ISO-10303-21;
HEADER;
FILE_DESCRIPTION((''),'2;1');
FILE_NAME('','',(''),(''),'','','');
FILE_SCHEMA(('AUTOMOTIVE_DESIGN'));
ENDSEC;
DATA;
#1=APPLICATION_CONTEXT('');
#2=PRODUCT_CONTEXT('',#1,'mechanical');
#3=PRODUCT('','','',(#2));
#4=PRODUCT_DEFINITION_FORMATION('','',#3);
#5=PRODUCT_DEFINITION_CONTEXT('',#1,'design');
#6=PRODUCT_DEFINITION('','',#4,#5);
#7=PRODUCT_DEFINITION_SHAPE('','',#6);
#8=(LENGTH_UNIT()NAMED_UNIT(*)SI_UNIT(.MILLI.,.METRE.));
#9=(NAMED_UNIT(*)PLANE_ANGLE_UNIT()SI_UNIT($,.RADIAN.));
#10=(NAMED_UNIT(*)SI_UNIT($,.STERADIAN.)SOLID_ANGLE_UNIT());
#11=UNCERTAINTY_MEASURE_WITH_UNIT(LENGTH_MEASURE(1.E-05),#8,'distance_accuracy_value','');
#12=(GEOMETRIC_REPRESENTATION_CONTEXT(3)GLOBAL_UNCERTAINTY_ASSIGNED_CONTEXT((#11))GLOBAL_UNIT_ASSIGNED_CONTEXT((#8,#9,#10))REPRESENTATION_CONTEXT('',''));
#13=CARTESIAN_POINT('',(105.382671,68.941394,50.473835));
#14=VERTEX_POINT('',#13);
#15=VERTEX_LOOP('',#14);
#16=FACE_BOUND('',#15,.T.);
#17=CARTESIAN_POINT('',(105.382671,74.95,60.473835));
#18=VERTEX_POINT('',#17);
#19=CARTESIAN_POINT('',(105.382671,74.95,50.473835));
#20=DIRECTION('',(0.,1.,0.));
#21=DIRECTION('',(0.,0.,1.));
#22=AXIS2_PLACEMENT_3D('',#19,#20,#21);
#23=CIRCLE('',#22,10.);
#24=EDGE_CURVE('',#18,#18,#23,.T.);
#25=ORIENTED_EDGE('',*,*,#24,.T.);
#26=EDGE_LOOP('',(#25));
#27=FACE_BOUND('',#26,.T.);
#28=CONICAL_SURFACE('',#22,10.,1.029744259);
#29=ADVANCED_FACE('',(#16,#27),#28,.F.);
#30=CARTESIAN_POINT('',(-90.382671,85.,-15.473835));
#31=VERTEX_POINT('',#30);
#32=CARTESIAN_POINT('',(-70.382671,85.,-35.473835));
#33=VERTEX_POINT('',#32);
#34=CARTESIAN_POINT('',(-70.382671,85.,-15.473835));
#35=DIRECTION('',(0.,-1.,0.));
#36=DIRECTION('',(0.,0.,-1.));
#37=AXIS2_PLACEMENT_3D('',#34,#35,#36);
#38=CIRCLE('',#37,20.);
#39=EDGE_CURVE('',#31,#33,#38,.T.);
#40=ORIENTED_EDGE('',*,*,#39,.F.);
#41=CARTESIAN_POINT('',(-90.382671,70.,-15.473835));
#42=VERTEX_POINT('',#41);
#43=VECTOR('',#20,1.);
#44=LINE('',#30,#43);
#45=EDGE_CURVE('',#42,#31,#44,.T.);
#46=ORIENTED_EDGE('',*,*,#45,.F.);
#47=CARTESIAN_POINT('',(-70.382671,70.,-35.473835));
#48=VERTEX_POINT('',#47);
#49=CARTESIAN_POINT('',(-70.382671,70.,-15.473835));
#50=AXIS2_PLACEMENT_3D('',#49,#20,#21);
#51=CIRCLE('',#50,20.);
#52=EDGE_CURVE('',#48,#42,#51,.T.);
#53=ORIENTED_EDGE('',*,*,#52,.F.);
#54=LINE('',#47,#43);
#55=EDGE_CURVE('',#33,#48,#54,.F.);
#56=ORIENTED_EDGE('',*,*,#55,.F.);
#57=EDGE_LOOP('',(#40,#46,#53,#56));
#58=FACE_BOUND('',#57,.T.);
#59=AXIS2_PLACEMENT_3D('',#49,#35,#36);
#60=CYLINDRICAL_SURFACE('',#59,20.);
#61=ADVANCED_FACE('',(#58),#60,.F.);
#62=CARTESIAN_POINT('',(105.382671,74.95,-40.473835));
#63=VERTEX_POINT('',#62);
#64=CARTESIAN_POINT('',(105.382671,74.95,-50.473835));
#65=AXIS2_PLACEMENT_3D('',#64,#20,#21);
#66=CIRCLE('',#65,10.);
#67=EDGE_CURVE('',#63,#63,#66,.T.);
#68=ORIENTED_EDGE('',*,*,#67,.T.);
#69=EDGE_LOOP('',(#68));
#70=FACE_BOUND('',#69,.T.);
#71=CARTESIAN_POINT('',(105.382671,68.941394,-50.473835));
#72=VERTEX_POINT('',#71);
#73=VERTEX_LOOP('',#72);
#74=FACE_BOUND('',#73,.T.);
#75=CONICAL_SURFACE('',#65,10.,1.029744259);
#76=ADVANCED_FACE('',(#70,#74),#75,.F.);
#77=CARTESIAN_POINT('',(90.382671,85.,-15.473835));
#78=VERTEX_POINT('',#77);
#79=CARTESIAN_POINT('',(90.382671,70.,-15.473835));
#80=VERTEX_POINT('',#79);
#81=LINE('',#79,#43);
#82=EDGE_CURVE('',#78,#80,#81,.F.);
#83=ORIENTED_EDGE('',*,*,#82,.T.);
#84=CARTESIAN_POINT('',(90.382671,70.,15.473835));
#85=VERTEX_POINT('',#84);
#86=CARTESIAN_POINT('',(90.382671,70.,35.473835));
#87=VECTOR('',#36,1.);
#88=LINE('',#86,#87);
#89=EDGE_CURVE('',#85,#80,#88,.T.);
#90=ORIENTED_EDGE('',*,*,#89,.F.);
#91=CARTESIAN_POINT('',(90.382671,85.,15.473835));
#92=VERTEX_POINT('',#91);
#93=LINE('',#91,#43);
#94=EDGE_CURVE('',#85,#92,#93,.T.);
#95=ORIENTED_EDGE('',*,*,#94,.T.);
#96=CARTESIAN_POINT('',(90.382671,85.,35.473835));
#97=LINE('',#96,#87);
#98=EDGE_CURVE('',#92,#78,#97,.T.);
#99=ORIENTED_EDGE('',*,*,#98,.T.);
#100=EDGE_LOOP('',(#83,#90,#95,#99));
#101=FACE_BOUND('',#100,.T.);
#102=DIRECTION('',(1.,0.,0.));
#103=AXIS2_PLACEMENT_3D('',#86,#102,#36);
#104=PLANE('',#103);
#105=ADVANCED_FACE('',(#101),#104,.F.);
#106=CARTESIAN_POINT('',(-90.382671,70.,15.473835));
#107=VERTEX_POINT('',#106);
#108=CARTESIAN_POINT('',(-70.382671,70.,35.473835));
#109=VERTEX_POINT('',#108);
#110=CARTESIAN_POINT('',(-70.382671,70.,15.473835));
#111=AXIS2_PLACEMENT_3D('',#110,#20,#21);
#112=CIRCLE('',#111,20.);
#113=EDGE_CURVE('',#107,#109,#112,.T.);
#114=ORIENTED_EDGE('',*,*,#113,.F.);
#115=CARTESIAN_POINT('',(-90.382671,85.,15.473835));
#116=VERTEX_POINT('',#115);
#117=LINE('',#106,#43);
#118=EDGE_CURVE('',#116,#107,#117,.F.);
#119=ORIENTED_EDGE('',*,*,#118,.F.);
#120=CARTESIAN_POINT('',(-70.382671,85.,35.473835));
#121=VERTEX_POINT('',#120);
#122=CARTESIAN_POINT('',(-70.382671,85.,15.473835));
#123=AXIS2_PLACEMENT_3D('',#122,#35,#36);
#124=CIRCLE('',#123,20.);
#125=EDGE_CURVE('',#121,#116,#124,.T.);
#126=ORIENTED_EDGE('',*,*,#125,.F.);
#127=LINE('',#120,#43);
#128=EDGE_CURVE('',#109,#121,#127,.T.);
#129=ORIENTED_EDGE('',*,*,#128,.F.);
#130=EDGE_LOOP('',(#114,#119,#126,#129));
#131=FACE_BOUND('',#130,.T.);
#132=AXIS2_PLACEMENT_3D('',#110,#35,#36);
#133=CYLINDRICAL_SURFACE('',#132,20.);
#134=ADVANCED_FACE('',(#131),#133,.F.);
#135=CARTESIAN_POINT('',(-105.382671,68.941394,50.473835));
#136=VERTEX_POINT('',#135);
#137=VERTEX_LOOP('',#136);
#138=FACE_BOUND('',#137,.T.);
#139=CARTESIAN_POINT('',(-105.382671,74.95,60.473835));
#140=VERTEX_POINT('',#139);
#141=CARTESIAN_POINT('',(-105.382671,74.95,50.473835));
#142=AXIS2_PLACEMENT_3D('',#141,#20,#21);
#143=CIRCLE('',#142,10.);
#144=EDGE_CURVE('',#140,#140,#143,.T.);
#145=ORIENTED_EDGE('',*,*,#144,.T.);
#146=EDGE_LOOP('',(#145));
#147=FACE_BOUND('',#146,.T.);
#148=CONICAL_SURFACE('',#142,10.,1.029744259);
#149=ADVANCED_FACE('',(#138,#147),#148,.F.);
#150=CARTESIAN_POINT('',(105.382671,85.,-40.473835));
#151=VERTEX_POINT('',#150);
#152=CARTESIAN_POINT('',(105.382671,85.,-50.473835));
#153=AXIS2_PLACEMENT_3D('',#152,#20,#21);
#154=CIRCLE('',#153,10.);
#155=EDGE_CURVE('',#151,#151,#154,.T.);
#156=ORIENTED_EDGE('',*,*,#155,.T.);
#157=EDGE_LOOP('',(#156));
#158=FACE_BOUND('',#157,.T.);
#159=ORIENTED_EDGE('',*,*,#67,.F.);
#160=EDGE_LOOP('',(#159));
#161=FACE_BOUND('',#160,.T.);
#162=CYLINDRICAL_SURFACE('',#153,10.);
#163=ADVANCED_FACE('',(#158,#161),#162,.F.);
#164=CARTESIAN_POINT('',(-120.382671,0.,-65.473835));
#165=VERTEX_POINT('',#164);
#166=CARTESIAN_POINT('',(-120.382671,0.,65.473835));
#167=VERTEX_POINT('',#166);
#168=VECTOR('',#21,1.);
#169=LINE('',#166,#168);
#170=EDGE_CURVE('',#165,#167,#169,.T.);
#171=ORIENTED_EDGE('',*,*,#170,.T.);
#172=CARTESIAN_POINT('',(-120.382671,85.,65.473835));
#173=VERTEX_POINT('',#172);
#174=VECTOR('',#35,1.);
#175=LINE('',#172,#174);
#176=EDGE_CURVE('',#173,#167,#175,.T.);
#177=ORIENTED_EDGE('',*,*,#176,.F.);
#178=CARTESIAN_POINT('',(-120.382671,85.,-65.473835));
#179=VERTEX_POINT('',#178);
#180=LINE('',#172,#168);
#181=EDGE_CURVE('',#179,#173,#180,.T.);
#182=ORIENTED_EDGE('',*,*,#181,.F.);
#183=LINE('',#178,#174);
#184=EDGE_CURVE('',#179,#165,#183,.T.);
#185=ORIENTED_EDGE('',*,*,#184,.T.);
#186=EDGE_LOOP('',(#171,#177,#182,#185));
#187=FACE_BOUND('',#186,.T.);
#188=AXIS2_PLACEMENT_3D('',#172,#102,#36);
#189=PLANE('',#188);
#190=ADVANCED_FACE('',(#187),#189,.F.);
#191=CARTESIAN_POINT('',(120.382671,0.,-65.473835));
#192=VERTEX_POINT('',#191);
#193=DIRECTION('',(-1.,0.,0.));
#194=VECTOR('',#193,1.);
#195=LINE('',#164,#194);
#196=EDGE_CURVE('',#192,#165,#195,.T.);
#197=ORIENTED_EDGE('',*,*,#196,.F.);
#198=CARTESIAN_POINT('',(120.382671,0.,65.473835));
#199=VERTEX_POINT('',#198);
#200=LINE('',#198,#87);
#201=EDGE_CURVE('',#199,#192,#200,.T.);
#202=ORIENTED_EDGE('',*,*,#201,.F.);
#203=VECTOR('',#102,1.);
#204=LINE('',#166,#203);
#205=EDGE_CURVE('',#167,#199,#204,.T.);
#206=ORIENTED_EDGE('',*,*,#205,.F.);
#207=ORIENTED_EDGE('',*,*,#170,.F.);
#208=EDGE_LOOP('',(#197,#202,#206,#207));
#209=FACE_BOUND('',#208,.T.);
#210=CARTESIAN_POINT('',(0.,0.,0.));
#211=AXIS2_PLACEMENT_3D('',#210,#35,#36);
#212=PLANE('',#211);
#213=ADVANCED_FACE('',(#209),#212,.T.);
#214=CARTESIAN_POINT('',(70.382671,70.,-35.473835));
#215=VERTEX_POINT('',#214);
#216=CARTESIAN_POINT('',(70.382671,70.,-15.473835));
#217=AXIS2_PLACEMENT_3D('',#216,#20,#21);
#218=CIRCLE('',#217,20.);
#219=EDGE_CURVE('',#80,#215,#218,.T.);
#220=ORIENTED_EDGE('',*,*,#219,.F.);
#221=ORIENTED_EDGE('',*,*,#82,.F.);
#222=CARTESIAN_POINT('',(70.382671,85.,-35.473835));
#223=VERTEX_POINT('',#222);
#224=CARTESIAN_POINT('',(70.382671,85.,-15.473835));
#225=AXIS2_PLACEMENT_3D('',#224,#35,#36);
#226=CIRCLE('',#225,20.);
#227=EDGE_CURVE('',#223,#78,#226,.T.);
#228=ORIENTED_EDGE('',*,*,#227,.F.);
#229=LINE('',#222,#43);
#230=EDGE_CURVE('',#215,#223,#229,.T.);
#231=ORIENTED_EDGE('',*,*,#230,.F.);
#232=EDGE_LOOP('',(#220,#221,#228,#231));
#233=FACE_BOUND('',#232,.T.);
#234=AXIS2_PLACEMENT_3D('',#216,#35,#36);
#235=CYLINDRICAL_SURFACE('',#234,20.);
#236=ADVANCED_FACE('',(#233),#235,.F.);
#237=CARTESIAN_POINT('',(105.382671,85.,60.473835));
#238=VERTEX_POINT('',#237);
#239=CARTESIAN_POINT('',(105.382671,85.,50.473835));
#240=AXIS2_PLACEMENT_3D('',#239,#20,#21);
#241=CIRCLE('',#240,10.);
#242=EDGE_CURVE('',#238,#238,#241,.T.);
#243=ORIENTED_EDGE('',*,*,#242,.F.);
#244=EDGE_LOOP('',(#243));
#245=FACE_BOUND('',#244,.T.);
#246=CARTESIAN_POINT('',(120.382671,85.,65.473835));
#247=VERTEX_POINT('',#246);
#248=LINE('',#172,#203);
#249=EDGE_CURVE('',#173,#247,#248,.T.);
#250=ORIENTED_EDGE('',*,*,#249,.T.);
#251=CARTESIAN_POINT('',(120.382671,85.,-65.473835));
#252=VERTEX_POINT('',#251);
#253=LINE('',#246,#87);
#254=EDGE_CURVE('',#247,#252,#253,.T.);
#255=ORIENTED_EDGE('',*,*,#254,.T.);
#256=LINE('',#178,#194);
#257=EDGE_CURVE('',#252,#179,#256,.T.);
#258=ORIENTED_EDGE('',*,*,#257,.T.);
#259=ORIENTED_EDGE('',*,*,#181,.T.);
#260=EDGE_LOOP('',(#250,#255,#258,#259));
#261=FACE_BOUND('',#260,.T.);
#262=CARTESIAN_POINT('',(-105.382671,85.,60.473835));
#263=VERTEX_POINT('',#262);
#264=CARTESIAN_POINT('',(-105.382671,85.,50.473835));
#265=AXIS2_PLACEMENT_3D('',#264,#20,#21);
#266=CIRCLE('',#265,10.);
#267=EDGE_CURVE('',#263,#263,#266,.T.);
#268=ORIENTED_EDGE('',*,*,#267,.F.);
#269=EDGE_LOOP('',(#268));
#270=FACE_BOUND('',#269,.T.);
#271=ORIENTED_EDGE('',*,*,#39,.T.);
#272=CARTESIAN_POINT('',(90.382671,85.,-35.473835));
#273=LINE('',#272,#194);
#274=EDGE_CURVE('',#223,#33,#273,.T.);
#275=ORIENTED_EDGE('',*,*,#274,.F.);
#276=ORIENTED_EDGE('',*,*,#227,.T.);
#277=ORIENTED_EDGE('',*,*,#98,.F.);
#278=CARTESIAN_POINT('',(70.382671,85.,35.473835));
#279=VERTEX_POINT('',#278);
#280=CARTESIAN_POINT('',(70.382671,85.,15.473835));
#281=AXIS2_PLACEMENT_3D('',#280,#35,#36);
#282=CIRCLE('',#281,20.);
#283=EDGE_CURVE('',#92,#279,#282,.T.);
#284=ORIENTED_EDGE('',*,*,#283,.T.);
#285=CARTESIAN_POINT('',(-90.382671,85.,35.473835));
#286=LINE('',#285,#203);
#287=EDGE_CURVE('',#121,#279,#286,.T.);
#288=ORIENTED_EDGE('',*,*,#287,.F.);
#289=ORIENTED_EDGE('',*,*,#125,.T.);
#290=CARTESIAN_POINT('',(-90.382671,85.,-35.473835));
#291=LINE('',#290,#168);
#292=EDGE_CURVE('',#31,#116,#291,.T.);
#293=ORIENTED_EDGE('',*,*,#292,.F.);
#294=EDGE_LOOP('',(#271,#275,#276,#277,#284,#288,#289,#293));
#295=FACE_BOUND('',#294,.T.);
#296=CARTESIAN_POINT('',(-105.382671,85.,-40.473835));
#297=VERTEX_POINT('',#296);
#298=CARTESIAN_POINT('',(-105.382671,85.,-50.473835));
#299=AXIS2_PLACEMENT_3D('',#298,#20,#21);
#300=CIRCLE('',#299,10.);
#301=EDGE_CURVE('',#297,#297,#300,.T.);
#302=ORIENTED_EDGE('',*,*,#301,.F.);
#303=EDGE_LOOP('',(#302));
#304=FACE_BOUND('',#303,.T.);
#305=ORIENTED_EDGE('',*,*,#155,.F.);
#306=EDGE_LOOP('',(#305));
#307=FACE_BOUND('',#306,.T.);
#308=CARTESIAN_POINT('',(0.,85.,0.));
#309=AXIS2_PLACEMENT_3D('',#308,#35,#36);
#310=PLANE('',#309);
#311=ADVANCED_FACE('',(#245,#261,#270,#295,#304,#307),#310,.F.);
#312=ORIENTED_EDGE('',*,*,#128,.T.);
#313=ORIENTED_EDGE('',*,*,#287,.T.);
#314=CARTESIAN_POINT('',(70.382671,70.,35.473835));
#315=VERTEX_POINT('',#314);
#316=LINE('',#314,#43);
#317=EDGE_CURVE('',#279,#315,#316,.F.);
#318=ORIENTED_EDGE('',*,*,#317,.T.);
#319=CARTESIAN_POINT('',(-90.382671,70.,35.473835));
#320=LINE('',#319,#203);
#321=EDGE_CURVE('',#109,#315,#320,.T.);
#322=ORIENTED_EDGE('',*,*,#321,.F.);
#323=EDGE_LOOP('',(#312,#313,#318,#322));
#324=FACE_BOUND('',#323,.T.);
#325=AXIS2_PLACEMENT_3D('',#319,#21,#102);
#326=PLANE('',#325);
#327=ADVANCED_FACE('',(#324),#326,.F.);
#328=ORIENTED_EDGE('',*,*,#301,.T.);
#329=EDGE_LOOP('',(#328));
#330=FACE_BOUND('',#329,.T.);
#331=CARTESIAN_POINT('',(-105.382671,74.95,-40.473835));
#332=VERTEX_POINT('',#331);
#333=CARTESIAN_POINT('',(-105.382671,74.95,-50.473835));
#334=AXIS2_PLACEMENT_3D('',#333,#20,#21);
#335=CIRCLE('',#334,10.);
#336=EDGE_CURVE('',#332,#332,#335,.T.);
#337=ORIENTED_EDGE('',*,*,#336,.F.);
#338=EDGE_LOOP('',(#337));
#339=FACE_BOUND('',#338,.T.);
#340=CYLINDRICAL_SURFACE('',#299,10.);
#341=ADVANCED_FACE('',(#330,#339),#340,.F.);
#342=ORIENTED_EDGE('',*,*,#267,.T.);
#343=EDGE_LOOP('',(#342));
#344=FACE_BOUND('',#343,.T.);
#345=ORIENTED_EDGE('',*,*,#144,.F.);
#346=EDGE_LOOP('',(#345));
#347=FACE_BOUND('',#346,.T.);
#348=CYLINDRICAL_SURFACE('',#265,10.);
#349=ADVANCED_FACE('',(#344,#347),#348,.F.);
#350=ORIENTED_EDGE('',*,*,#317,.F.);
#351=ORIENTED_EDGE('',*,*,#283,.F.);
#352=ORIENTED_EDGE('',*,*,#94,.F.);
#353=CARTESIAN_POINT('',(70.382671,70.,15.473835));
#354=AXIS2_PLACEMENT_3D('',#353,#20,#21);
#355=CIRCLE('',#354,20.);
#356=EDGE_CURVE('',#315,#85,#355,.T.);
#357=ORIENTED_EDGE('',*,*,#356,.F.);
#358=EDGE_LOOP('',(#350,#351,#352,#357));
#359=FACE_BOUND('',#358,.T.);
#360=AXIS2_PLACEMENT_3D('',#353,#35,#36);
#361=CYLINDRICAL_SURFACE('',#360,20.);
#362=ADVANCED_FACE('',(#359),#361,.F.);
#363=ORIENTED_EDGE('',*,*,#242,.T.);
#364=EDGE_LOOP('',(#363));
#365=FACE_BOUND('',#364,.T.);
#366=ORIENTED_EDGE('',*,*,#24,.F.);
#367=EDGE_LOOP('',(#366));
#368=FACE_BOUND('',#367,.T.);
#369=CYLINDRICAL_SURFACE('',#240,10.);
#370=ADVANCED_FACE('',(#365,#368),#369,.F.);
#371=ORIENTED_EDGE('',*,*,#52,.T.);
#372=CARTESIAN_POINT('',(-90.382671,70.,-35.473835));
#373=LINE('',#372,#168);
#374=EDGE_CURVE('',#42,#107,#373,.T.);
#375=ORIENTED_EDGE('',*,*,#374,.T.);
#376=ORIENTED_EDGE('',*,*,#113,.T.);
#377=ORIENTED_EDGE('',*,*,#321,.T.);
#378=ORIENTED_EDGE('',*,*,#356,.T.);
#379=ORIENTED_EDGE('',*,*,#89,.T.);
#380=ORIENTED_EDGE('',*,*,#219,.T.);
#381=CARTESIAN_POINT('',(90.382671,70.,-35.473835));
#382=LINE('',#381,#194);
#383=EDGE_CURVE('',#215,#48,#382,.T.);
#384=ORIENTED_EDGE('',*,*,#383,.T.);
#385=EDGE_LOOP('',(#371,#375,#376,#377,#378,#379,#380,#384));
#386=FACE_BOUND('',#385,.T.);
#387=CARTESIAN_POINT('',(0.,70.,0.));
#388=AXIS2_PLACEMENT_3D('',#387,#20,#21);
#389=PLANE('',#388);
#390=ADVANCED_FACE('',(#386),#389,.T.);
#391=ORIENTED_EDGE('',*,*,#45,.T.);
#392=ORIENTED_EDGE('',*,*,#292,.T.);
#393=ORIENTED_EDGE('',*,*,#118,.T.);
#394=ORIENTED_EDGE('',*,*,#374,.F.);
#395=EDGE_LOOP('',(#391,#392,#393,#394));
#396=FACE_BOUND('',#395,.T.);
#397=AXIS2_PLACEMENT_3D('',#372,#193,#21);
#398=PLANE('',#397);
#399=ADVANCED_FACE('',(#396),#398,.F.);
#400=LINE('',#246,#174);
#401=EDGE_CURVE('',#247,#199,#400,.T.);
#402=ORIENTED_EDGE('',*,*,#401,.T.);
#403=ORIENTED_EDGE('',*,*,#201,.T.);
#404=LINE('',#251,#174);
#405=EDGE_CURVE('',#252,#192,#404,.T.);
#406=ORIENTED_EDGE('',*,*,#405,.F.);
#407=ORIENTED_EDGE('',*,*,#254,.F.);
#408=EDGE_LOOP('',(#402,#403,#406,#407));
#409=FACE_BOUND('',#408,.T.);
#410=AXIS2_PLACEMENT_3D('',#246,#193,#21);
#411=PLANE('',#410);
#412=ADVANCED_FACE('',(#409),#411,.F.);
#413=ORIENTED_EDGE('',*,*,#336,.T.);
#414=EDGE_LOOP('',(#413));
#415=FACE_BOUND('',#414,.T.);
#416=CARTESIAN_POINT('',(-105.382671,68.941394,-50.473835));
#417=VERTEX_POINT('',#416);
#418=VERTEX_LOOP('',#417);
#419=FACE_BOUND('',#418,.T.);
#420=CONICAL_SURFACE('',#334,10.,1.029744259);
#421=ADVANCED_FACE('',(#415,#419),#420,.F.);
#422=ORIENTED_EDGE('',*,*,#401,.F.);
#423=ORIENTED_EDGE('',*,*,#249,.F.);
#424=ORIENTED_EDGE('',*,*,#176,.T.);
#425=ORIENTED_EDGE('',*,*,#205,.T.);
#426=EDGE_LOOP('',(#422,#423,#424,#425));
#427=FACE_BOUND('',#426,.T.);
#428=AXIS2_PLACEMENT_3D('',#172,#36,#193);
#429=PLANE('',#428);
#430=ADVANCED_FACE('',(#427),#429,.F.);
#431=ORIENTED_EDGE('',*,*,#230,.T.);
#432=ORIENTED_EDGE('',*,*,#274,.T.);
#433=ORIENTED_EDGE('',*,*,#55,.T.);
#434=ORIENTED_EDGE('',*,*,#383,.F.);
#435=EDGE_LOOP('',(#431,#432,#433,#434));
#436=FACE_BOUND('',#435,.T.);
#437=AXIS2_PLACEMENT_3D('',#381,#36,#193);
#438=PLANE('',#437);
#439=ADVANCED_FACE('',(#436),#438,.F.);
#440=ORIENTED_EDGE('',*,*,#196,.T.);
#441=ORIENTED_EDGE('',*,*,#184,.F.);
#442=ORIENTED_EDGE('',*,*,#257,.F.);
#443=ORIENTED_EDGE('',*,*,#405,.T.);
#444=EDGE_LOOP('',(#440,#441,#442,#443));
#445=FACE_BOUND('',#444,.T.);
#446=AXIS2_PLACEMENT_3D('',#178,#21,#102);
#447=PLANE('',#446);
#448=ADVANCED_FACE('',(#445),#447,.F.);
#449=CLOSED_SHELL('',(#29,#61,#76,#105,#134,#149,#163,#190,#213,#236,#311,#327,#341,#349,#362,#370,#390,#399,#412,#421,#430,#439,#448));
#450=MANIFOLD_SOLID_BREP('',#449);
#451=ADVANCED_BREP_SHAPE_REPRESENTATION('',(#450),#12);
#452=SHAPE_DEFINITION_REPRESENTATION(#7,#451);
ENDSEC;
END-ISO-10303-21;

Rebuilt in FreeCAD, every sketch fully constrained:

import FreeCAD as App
import Part
import Sketcher

V = App.Vector


def edges_at(feature, points):
    """Names of the edges that pass closest to the given points."""
    edges = feature.Shape.Edges
    near = lambda p: min(range(len(edges)), key=lambda i: edges[i].distToShape(Part.Vertex(*p))[0])
    return sorted({f"Edge{near(p) + 1}" for p in points})

doc = App.newDocument("Part")
body = doc.addObject("PartDesign::Body", "Body")

# Sketch on XZ plane
sketch1 = body.newObject("Sketcher::SketchObject", "Sketch")
sketch1.AttachmentSupport = (doc.getObject("XZ_Plane"), [""])
sketch1.MapMode = "FlatFace"
sketch1.addGeometry([
    Part.LineSegment(V(-120.382671, -65.473835, 0), V(-120.382671, 65.473835, 0)),
    Part.LineSegment(V(-120.382671, 65.473835, 0), V(120.382671, 65.473835, 0)),
    Part.LineSegment(V(120.382671, 65.473835, 0), V(120.382671, -65.473835, 0)),
    Part.LineSegment(V(120.382671, -65.473835, 0), V(-120.382671, -65.473835, 0)),
], False)
sketch1.addConstraint([
    Sketcher.Constraint("Coincident", 0, 2, 1, 1),
    Sketcher.Constraint("Coincident", 1, 2, 2, 1),
    Sketcher.Constraint("Coincident", 2, 2, 3, 1),
    Sketcher.Constraint("Coincident", 3, 2, 0, 1),
    Sketcher.Constraint("Vertical", 0),
    Sketcher.Constraint("Horizontal", 1),
    Sketcher.Constraint("Vertical", 2),
    Sketcher.Constraint("Horizontal", 3),
    Sketcher.Constraint("Symmetric", 0, 2, 2, 2, -1, 1),
    Sketcher.Constraint("DistanceY", 0, 1, 0, 2, 130.94767),
    Sketcher.Constraint("DistanceX", 1, 1, 1, 2, 240.765343),
])
pad1 = body.newObject("PartDesign::Pad", "Pad")
pad1.Profile = sketch1
pad1.Length = 85
pad1.Reversed = True

# Sketch on XZ plane
sketch2 = body.newObject("Sketcher::SketchObject", "Sketch001")
sketch2.AttachmentSupport = (doc.getObject("XZ_Plane"), [""])
sketch2.MapMode = "FlatFace"
sketch2.AttachmentOffset = App.Placement(V(0, 0, -85), App.Rotation())
sketch2.addGeometry([
    Part.LineSegment(V(-90.382671, -35.473835, 0), V(-90.382671, 35.473835, 0)),
    Part.LineSegment(V(-90.382671, 35.473835, 0), V(90.382671, 35.473835, 0)),
    Part.LineSegment(V(90.382671, 35.473835, 0), V(90.382671, -35.473835, 0)),
    Part.LineSegment(V(90.382671, -35.473835, 0), V(-90.382671, -35.473835, 0)),
], False)
sketch2.addConstraint([
    Sketcher.Constraint("Coincident", 0, 2, 1, 1),
    Sketcher.Constraint("Coincident", 1, 2, 2, 1),
    Sketcher.Constraint("Coincident", 2, 2, 3, 1),
    Sketcher.Constraint("Coincident", 3, 2, 0, 1),
    Sketcher.Constraint("Vertical", 0),
    Sketcher.Constraint("Horizontal", 1),
    Sketcher.Constraint("Vertical", 2),
    Sketcher.Constraint("Horizontal", 3),
    Sketcher.Constraint("Symmetric", 0, 2, 2, 2, -1, 1),
    Sketcher.Constraint("DistanceY", 0, 1, 0, 2, 70.94767),
    Sketcher.Constraint("DistanceX", 1, 1, 1, 2, 180.765343),
])
pocket1 = body.newObject("PartDesign::Pocket", "Pocket")
pocket1.Profile = sketch2
pocket1.Length = 15
pocket1.Reversed = True

# Sketch on XZ plane
sketch3 = body.newObject("Sketcher::SketchObject", "Sketch002")
sketch3.AttachmentSupport = (doc.getObject("XZ_Plane"), [""])
sketch3.MapMode = "FlatFace"
sketch3.AttachmentOffset = App.Placement(V(0, 0, -85), App.Rotation())
sketch3.addGeometry([
    Part.Circle(V(-105.382671, -50.473835, 0), V(0, 0, 1), 10),
    Part.Circle(V(-105.382671, 50.473835, 0), V(0, 0, 1), 10),
    Part.Circle(V(105.382671, -50.473835, 0), V(0, 0, 1), 10),
    Part.Circle(V(105.382671, 50.473835, 0), V(0, 0, 1), 10),
], False)
sketch3.addConstraint([
    Sketcher.Constraint("Equal", 0, 1),
    Sketcher.Constraint("Equal", 1, 2),
    Sketcher.Constraint("Equal", 2, 3),
    Sketcher.Constraint("Symmetric", 1, 3, 2, 3, -1, 1),
    Sketcher.Constraint("Symmetric", 0, 3, 3, 3, -1, 1),
    Sketcher.Constraint("Symmetric", 0, 3, 2, 3, -2),
    Sketcher.Constraint("Diameter", 0, 20.0),
    Sketcher.Constraint("DistanceX", 0, 3, -1, 1, 105.382671),
    Sketcher.Constraint("DistanceY", 0, 3, 1, 3, 100.94767),
])
doc.recompute()
hole = body.newObject("PartDesign::Hole", "Hole")
hole.Profile = sketch3
hole.ThreadType = "None"
hole.Diameter = 20
hole.DepthType = "Dimension"
hole.Depth = 10.05
hole.DrillPoint = "Angled"
hole.DrillPointAngle = 118
hole.Reversed = True
doc.recompute()

fillet = body.newObject("PartDesign::Fillet", "Fillet")
fillet.Base = (hole, edges_at(hole, [
    (90.383, 77.5, 35.474),
    (-90.383, 77.5, 35.474),
    (-90.383, 77.5, -35.474),
    (90.383, 77.5, -35.474),
]))
fillet.Radius = 20

doc.recompute()
